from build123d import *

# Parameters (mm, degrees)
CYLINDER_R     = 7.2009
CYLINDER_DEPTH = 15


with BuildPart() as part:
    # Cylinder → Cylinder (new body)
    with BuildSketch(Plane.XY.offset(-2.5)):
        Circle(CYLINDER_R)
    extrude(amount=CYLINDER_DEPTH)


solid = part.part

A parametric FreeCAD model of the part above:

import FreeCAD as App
import Part
import Sketcher
from FreeCAD import Vector

doc = App.newDocument("Part")
body = doc.addObject("PartDesign::Body", "Body")

# Sketch on XY plane
sketch1 = body.newObject("Sketcher::SketchObject", "Sketch")
sketch1.AttachmentSupport = (doc.getObject("XY_Plane"), [""])
sketch1.MapMode = "FlatFace"
sketch1.AttachmentOffset = App.Placement(Vector(0, 0, -2.5), App.Rotation())
sketch1.addGeometry(Part.Circle(Vector(0, 0, 0), Vector(0, 0, 1), 7), False)
sketch1.addConstraint(Sketcher.Constraint("Coincident", 0, 3, -1, 1))
sketch1.addConstraint(Sketcher.Constraint("Diameter", 0, 14.4018))
pad1 = body.newObject("PartDesign::Pad", "Pad")
pad1.Profile = sketch1
pad1.Length = 15

doc.recompute()
